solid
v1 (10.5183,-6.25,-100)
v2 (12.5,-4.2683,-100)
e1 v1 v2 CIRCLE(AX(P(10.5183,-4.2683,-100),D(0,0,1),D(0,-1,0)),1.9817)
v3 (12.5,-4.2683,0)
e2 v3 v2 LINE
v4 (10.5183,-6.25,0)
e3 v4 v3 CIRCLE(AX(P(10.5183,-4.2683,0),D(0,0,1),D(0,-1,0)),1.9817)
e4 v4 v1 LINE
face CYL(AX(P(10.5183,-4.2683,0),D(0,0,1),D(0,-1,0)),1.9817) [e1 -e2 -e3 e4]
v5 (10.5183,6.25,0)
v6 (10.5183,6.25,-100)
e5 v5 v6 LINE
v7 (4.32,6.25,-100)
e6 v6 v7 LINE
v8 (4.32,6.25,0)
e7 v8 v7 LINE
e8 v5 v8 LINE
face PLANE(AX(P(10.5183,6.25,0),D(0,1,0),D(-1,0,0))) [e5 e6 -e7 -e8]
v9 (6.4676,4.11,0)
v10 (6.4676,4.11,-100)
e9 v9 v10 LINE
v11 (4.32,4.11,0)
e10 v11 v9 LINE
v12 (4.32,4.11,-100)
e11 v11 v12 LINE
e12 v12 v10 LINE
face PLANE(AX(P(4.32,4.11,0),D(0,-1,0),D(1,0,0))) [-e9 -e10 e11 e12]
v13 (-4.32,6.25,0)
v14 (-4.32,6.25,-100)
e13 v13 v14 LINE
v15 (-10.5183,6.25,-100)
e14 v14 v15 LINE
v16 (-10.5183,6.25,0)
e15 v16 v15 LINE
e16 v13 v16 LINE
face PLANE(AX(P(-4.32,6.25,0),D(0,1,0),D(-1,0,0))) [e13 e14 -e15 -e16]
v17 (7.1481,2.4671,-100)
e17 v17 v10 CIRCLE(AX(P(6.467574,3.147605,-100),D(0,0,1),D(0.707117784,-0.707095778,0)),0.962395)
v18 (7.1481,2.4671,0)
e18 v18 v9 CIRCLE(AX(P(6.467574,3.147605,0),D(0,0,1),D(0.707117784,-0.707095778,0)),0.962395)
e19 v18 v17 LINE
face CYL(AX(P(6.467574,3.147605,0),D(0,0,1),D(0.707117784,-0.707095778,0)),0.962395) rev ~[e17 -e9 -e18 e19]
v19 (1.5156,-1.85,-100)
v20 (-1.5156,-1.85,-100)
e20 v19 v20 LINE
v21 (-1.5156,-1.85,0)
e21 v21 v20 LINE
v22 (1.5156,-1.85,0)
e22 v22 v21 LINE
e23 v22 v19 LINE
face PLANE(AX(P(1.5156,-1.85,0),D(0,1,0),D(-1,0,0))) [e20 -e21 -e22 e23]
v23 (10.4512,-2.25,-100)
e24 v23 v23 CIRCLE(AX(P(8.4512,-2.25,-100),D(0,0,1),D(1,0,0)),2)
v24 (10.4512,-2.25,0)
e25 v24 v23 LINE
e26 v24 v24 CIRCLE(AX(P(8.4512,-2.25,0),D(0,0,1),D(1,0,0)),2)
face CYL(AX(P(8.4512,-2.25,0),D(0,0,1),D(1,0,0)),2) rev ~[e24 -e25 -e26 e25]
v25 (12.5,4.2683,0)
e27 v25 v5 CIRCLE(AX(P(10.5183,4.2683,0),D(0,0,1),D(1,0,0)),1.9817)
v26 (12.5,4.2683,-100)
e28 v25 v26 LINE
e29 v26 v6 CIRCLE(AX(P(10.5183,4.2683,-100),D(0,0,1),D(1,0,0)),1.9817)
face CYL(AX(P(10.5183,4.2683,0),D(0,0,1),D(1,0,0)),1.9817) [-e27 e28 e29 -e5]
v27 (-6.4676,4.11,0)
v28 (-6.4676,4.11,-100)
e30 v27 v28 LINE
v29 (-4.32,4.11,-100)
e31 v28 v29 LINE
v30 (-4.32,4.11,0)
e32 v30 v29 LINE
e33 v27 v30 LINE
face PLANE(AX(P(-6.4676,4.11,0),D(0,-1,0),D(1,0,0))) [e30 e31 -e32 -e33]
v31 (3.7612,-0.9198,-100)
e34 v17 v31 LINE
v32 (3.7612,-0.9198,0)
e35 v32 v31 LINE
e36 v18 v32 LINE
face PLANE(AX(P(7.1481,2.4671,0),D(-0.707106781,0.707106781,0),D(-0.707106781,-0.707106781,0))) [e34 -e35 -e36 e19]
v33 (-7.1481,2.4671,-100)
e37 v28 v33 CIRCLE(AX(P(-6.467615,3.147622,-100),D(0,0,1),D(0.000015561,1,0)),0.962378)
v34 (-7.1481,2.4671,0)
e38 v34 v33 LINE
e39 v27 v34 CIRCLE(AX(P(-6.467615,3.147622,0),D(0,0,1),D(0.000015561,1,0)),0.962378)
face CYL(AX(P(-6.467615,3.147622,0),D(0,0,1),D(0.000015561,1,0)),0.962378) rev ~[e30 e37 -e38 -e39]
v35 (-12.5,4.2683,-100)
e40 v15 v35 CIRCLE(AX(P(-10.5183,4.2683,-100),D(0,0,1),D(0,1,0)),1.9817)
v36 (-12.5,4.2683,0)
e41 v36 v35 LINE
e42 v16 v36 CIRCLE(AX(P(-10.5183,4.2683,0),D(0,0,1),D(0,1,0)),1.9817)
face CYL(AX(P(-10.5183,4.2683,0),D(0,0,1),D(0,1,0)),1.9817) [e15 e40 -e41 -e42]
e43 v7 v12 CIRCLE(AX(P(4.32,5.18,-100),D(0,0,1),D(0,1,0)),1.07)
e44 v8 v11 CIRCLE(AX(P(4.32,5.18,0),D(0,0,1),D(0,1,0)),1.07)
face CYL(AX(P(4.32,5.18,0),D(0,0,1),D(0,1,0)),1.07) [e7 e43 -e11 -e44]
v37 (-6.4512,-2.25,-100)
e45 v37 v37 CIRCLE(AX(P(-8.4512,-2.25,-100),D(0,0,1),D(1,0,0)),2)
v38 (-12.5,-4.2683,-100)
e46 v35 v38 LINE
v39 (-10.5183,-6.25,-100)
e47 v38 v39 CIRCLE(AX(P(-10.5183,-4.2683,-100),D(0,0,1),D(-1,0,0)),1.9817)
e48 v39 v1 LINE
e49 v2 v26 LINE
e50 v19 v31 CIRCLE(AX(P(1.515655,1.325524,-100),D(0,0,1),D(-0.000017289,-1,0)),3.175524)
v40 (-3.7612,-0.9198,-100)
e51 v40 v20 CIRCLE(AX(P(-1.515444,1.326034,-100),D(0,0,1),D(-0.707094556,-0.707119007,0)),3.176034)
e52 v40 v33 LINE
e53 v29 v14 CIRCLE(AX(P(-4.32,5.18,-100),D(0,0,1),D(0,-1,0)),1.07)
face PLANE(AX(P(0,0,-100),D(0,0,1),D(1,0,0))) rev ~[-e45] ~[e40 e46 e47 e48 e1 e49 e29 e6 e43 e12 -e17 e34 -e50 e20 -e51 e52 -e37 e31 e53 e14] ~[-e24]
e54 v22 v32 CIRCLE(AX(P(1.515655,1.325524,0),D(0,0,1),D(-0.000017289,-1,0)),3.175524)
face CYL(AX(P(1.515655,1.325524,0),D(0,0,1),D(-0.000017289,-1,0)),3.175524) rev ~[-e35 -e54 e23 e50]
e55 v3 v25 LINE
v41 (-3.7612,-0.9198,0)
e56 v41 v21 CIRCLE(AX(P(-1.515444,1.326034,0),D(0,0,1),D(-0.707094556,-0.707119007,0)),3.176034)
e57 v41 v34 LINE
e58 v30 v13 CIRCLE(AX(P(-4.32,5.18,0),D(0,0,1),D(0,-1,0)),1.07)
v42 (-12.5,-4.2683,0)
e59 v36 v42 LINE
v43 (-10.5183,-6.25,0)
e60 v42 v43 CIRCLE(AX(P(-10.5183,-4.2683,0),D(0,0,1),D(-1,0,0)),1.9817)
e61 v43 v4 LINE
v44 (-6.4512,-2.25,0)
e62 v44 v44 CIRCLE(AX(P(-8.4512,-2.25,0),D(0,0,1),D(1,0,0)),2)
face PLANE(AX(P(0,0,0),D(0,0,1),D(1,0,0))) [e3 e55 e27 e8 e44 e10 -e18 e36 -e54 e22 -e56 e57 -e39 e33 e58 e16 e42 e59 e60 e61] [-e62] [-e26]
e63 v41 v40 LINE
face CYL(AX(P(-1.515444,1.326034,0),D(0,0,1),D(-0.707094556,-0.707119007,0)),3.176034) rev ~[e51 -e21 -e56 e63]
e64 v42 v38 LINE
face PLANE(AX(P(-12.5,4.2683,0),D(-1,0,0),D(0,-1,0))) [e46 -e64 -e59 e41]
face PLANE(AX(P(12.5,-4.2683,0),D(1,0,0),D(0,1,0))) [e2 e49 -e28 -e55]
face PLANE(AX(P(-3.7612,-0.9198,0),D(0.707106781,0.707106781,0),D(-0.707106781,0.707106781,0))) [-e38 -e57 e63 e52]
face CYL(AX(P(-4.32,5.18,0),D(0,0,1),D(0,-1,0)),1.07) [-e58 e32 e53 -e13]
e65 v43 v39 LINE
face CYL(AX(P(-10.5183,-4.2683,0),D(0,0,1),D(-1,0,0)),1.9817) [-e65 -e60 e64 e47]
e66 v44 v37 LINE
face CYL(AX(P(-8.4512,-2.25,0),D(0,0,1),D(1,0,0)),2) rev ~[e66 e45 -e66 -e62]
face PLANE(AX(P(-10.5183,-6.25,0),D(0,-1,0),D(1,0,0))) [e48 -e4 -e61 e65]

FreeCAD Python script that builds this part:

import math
import FreeCAD as App
import Part
import Sketcher

V = App.Vector
Q = App.Units.Quantity

doc = App.newDocument("Part")
params = doc.addObject("Spreadsheet::Sheet", "Params")
for row, (alias, value) in enumerate([
    ("sketch1_diameter", "4 mm"),
    ("sketch1_radius", "1.07 mm"),
    ("pad1_length", "100 mm"),
], start=1):
    params.set(f"A{row}", alias)
    params.set(f"B{row}", "=" + value)
    params.setAlias(f"B{row}", alias)

body = doc.addObject("PartDesign::Body", "Body")

sketch1 = body.newObject("Sketcher::SketchObject", "Sketch")
sketch1.AttachmentSupport = (doc.getObject("XY_Plane"), [""])
sketch1.MapMode = "FlatFace"
sketch1.addGeometry([
    Part.LineSegment(V(-4.3, 6.2, 0), V(-10.5, 6.2, 0)),
    Part.ArcOfCircle(Part.Circle(V(-10.5, 4.3, 0), V(0, 0, 1), 2), math.radians(90), math.radians(180)),
    Part.LineSegment(V(-12.5, 4.3, 0), V(-12.5, -4.3, 0)),
    Part.ArcOfCircle(Part.Circle(V(-10.5, -4.3, 0), V(0, 0, 1), 2), math.radians(180), math.radians(270)),
    Part.LineSegment(V(-10.5, -6.2, 0), V(10.5, -6.2, 0)),
    Part.ArcOfCircle(Part.Circle(V(10.5, -4.3, 0), V(0, 0, 1), 2), math.radians(-90), math.radians(0)),
    Part.LineSegment(V(12.5, -4.3, 0), V(12.5, 4.3, 0)),
    Part.ArcOfCircle(Part.Circle(V(10.5, 4.3, 0), V(0, 0, 1), 2), math.radians(0), math.radians(90)),
    Part.LineSegment(V(10.5, 6.2, 0), V(4.3, 6.2, 0)),
    Part.ArcOfCircle(Part.Circle(V(4.3, 5.2, 0), V(0, 0, 1), 1.1), math.radians(90), math.radians(270)),
    Part.LineSegment(V(4.3, 4.1, 0), V(6.5, 4.1, 0)),
    Part.ArcOfCircle(Part.Circle(V(6.5, 3.1, 0), V(0, 0, 1), 1), math.radians(-45), math.radians(90)),
    Part.LineSegment(V(7.1, 2.5, 0), V(3.8, -0.9, 0)),
    Part.ArcOfCircle(Part.Circle(V(1.5, 1.3, 0), V(0, 0, 1), 3.2), math.radians(-90), math.radians(-45)),
    Part.LineSegment(V(1.5, -1.9, 0), V(-1.5, -1.9, 0)),
    Part.ArcOfCircle(Part.Circle(V(-1.5, 1.3, 0), V(0, 0, 1), 3.2), math.radians(-135), math.radians(-90)),
    Part.LineSegment(V(-3.8, -0.9, 0), V(-7.1, 2.5, 0)),
    Part.ArcOfCircle(Part.Circle(V(-6.5, 3.1, 0), V(0, 0, 1), 1), math.radians(90), math.radians(225)),
    Part.LineSegment(V(-6.5, 4.1, 0), V(-4.3, 4.1, 0)),
    Part.ArcOfCircle(Part.Circle(V(-4.3, 5.2, 0), V(0, 0, 1), 1.1), math.radians(-90), math.radians(90)),
    Part.Circle(V(-8.5, -2.2, 0), V(0, 0, 1), 2),
    Part.Circle(V(8.5, -2.2, 0), V(0, 0, 1), 2),
], False)
sketch1.addConstraint([
    Sketcher.Constraint("Tangent", 0, 2, 1, 1),
    Sketcher.Constraint("Tangent", 1, 2, 2, 1),
    Sketcher.Constraint("Tangent", 2, 2, 3, 1),
    Sketcher.Constraint("Tangent", 3, 2, 4, 1),
    Sketcher.Constraint("Tangent", 4, 2, 5, 1),
    Sketcher.Constraint("Tangent", 5, 2, 6, 1),
    Sketcher.Constraint("Tangent", 6, 2, 7, 1),
    Sketcher.Constraint("Tangent", 7, 2, 8, 1),
    Sketcher.Constraint("Tangent", 8, 2, 9, 1),
    Sketcher.Constraint("Tangent", 9, 2, 10, 1),
    Sketcher.Constraint("Tangent", 10, 2, 11, 2),
    Sketcher.Constraint("Tangent", 11, 1, 12, 1),
    Sketcher.Constraint("Tangent", 12, 2, 13, 2),
    Sketcher.Constraint("Tangent", 13, 1, 14, 1),
    Sketcher.Constraint("Tangent", 14, 2, 15, 2),
    Sketcher.Constraint("Tangent", 15, 1, 16, 1),
    Sketcher.Constraint("Tangent", 16, 2, 17, 2),
    Sketcher.Constraint("Tangent", 17, 1, 18, 1),
    Sketcher.Constraint("Tangent", 18, 2, 19, 1),
    Sketcher.Constraint("Tangent", 19, 2, 0, 1),
    Sketcher.Constraint("Horizontal", 0),
    Sketcher.Constraint("Vertical", 2),
    Sketcher.Constraint("Horizontal", 4),
    Sketcher.Constraint("Vertical", 6),
    Sketcher.Constraint("Horizontal", 8),
    Sketcher.Constraint("Horizontal", 10),
    Sketcher.Constraint("Horizontal", 14),
    Sketcher.Constraint("Horizontal", 18),
    Sketcher.Constraint("Equal", 1, 3),
    Sketcher.Constraint("Equal", 3, 5),
    Sketcher.Constraint("Equal", 5, 7),
    Sketcher.Constraint("Equal", 13, 15),
    Sketcher.Constraint("Equal", 11, 17),
    Sketcher.Constraint("Equal", 9, 19),
    Sketcher.Constraint("Equal", 20, 21),
    Sketcher.Constraint("Symmetric", 1, 3, 5, 3, -1, 1),
    Sketcher.Constraint("Symmetric", 11, 3, 17, 3, -2),
    Sketcher.Constraint("Symmetric", 20, 3, 21, 3, -2),
    Sketcher.Constraint("Perpendicular", 12, 16),
    Sketcher.Constraint("Horizontal", 12, 2, 15, 1),
    Sketcher.Constraint("Equal", 0, 8),
    Sketcher.Constraint("Diameter", 20, Q("4 mm")),
    Sketcher.Constraint("Radius", 9, Q("1.07 mm")),
    Sketcher.Constraint("DistanceY", 3, 2, 20, 3, Q("4 mm")),
    Sketcher.Constraint("DistanceX", 1, 2, -1, 1, Q("12.5 mm")),
    Sketcher.Constraint("Radius", 1, Q("1.9817 mm")),
    Sketcher.Constraint("Radius", 11, Q("0.9624 mm")),
    Sketcher.Constraint("Radius", 13, Q("3.1758 mm")),
    Sketcher.Constraint("DistanceY", 20, 3, 0, 2, Q("8.5 mm")),
    Sketcher.Constraint("DistanceY", 21, 3, 13, 1, Q("0.4 mm")),
    Sketcher.Constraint("DistanceX", -1, 1, 9, 3, Q("4.32 mm")),
    Sketcher.Constraint("DistanceX", 12, 2, 21, 3, Q("4.69 mm")),
    Sketcher.Constraint("DistanceX", 10, 1, 10, 2, Q("2.1476 mm")),
])
sketch1.setExpression("Constraints[41]", "Params.sketch1_diameter")
sketch1.setExpression("Constraints[42]", "Params.sketch1_radius")
pad1 = body.newObject("PartDesign::Pad", "Pad")
pad1.Profile = sketch1
pad1.setExpression("Length", "Params.pad1_length")
pad1.Reversed = True

doc.recompute()
